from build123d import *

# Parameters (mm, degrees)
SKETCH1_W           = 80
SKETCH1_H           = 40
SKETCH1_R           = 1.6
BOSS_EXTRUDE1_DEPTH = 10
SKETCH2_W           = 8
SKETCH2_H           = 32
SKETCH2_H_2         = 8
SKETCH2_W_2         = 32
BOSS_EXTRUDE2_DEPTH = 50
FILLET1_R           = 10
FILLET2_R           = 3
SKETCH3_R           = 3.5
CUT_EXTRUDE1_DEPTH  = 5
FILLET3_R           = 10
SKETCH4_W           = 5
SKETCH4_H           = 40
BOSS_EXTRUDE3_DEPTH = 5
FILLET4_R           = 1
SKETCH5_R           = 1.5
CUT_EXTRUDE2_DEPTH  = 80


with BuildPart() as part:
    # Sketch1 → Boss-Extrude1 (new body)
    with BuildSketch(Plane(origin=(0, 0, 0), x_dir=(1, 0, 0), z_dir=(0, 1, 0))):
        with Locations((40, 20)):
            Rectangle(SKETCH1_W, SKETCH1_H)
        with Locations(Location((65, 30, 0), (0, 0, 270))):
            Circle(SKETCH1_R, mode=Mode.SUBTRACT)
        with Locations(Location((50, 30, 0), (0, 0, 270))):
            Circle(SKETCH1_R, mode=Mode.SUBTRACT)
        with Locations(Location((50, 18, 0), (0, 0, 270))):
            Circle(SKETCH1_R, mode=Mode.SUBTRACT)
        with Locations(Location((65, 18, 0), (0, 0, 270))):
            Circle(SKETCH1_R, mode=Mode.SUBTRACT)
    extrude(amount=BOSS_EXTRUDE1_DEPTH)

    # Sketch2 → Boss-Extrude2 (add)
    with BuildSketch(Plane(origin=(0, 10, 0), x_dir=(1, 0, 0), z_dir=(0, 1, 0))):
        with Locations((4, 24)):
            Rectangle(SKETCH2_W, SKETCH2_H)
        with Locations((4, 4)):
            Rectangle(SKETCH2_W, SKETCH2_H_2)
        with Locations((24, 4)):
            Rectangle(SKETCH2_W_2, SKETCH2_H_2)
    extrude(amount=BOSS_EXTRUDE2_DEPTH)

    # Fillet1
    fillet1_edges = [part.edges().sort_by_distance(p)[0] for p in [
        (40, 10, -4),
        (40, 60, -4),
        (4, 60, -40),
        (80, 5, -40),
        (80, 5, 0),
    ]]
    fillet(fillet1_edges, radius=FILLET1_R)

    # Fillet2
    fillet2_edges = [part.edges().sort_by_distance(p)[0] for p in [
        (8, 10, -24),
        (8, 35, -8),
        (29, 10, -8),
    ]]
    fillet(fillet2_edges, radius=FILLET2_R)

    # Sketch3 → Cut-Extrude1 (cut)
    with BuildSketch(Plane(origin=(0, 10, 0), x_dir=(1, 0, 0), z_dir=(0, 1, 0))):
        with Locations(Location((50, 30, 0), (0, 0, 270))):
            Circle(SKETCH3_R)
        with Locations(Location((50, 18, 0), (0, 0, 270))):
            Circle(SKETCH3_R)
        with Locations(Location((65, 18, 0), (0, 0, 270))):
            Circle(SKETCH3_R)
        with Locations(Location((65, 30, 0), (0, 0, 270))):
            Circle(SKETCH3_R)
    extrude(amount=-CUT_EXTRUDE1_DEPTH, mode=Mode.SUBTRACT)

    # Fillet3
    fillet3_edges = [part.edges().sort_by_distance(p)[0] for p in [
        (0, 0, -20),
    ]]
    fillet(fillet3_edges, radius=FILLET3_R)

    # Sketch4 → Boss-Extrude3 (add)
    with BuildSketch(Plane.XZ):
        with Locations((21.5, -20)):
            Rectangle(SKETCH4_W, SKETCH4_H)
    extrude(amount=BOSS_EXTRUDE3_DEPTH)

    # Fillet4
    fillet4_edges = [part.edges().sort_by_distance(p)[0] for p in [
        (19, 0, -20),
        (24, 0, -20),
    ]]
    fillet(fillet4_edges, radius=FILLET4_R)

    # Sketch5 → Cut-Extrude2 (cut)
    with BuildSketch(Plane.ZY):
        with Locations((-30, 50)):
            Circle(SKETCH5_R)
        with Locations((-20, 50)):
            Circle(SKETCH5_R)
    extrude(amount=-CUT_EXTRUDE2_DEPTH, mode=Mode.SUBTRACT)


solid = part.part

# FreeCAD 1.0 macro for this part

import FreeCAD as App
import Part
import Sketcher
from FreeCAD import Vector


def edges_at(feature, points):
    """Names of the edges that pass closest to the given points."""
    edges = feature.Shape.Edges
    near = lambda p: min(range(len(edges)), key=lambda i: edges[i].distToShape(Part.Vertex(*p))[0])
    return sorted({f"Edge{near(p) + 1}" for p in points})


def add_polygon(sketch, points):
    """Adds a closed chain of lines whose ends are joined by coincident constraints."""
    first, n = sketch.GeometryCount, len(points)
    for a, b in zip(points, points[1:] + points[:1]):
        sketch.addGeometry(Part.LineSegment(App.Vector(*a, 0), App.Vector(*b, 0)), False)
    for i in range(n):
        sketch.addConstraint(Sketcher.Constraint("Coincident", first + i, 2, first + (i + 1) % n, 1))

doc = App.newDocument("Part")
params = doc.addObject("Spreadsheet::Sheet", "Params")
for row, (alias, value) in enumerate([
    ("sketch1_diameter", "3.2 mm"),
    ("sketch1_width", "80 mm"),
    ("sketch1_height", "40 mm"),
    ("pad1_length", "10 mm"),
    ("sketch2_width", "40 mm"),
    ("sketch2_width2", "32 mm"),
    ("pad2_length", "50 mm"),
    ("fillet_radius", "10 mm"),
    ("fillet2_radius", "3 mm"),
    ("sketch3_diameter", "7 mm"),
    ("pocket1_length", "5 mm"),
    ("fillet3_radius", "10 mm"),
    ("sketch4_width", "5 mm"),
    ("sketch4_height", "40 mm"),
    ("pad3_length", "5 mm"),
    ("fillet4_radius", "1 mm"),
    ("sketch5_diameter", "3 mm"),
    ("pocket2_length", "80 mm"),
], start=1):
    params.set(f"A{row}", alias)
    params.set(f"B{row}", "=" + value)
    params.setAlias(f"B{row}", alias)

body = doc.addObject("PartDesign::Body", "Body")

sketch1 = doc.addObject("Sketcher::SketchObject", "Sketch")
body.addObject(sketch1)
sketch1.AttachmentSupport = (doc.XZ_Plane, [""])
sketch1.MapMode = "FlatFace"
add_polygon(sketch1, [(0, -40), (0, 0), (80, 0), (80, -40)])
sketch1.addGeometry(Part.Circle(Vector(50, -18, 0), Vector(0, 0, 1), 1.6), False)
sketch1.addGeometry(Part.Circle(Vector(65, -18, 0), Vector(0, 0, 1), 1.6), False)
sketch1.addGeometry(Part.Circle(Vector(50, -30, 0), Vector(0, 0, 1), 1.6), False)
sketch1.addGeometry(Part.Circle(Vector(65, -30, 0), Vector(0, 0, 1), 1.6), False)
sketch1.addConstraint(Sketcher.Constraint("Vertical", 0))
sketch1.addConstraint(Sketcher.Constraint("Horizontal", 1))
sketch1.addConstraint(Sketcher.Constraint("Vertical", 2))
sketch1.addConstraint(Sketcher.Constraint("Horizontal", 3))
sketch1.addConstraint(Sketcher.Constraint("Coincident", 0, 2, -1, 1))
sketch1.addConstraint(Sketcher.Constraint("Equal", 4, 5))
sketch1.addConstraint(Sketcher.Constraint("Equal", 5, 6))
sketch1.addConstraint(Sketcher.Constraint("Equal", 6, 7))
sketch1.addConstraint(Sketcher.Constraint("Horizontal", 4, 3, 5, 3))
sketch1.addConstraint(Sketcher.Constraint("Horizontal", 6, 3, 7, 3))
sketch1.addConstraint(Sketcher.Constraint("Vertical", 4, 3, 6, 3))
sketch1.addConstraint(Sketcher.Constraint("Vertical", 5, 3, 7, 3))
sketch1.addConstraint(Sketcher.Constraint("Diameter", 4, 3.2))
sketch1.addConstraint(Sketcher.Constraint("DistanceX", 1, 1, 1, 2, 80.0))
sketch1.addConstraint(Sketcher.Constraint("DistanceY", 0, 1, 0, 2, 40.0))
sketch1.addConstraint(Sketcher.Constraint("DistanceX", -1, 1, 4, 3, 50.0))
sketch1.addConstraint(Sketcher.Constraint("DistanceY", 4, 3, -1, 1, 18.0))
sketch1.addConstraint(Sketcher.Constraint("DistanceX", -1, 1, 5, 3, 65.0))
sketch1.addConstraint(Sketcher.Constraint("DistanceY", 6, 3, -1, 1, 30.0))
sketch1.setExpression("Constraints[16]", "Params.sketch1_diameter")
sketch1.setExpression("Constraints[17]", "Params.sketch1_width")
sketch1.setExpression("Constraints[18]", "Params.sketch1_height")
pad1 = doc.addObject("PartDesign::Pad", "Pad")
body.addObject(pad1)
pad1.Profile = sketch1
pad1.setExpression("Length", "Params.pad1_length")
pad1.Reversed = True

sketch2 = doc.addObject("Sketcher::SketchObject", "Sketch001")
body.addObject(sketch2)
sketch2.AttachmentSupport = (doc.XZ_Plane, [""])
sketch2.MapMode = "FlatFace"
sketch2.AttachmentOffset = App.Placement(Vector(0, 0, -10), App.Rotation())
add_polygon(sketch2, [(0, -40), (0, 0), (40, 0), (40, -8), (8, -8), (8, -40)])
sketch2.addConstraint(Sketcher.Constraint("Vertical", 0))
sketch2.addConstraint(Sketcher.Constraint("Horizontal", 1))
sketch2.addConstraint(Sketcher.Constraint("Vertical", 2))
sketch2.addConstraint(Sketcher.Constraint("Horizontal", 3))
sketch2.addConstraint(Sketcher.Constraint("Vertical", 4))
sketch2.addConstraint(Sketcher.Constraint("Horizontal", 5))
sketch2.addConstraint(Sketcher.Constraint("Coincident", 0, 2, -1, 1))
sketch2.addConstraint(Sketcher.Constraint("Equal", 1, 0))
sketch2.addConstraint(Sketcher.Constraint("Equal", 5, 2))
sketch2.addConstraint(Sketcher.Constraint("DistanceX", 1, 1, 1, 2, 40.0))
sketch2.addConstraint(Sketcher.Constraint("DistanceX", 3, 2, 3, 1, 32.0))
sketch2.setExpression("Constraints[15]", "Params.sketch2_width")
sketch2.setExpression("Constraints[16]", "Params.sketch2_width2")
pad2 = doc.addObject("PartDesign::Pad", "Pad001")
body.addObject(pad2)
pad2.Profile = sketch2
pad2.setExpression("Length", "Params.pad2_length")
pad2.Reversed = True
doc.recompute()

fillet = doc.addObject("PartDesign::Fillet", "Fillet")
body.addObject(fillet)
fillet.Base = (pad2, edges_at(pad2, [
    (40, 10, -4),
    (40, 60, -4),
    (4, 60, -40),
    (80, 5, -40),
    (80, 5, 0),
]))
fillet.setExpression("Radius", "Params.fillet_radius")
doc.recompute()

fillet2 = doc.addObject("PartDesign::Fillet", "Fillet001")
body.addObject(fillet2)
fillet2.Base = (fillet, edges_at(fillet, [(8, 10, -24), (8, 35, -8), (29, 10, -8)]))
fillet2.setExpression("Radius", "Params.fillet2_radius")

sketch3 = doc.addObject("Sketcher::SketchObject", "Sketch002")
body.addObject(sketch3)
sketch3.AttachmentSupport = (doc.XZ_Plane, [""])
sketch3.MapMode = "FlatFace"
sketch3.AttachmentOffset = App.Placement(Vector(0, 0, -10), App.Rotation())
sketch3.addGeometry(Part.Circle(Vector(50, -30, 0), Vector(0, 0, 1), 3.5), False)
sketch3.addGeometry(Part.Circle(Vector(50, -18, 0), Vector(0, 0, 1), 3.5), False)
sketch3.addGeometry(Part.Circle(Vector(65, -18, 0), Vector(0, 0, 1), 3.5), False)
sketch3.addGeometry(Part.Circle(Vector(65, -30, 0), Vector(0, 0, 1), 3.5), False)
sketch3.addConstraint(Sketcher.Constraint("Equal", 0, 1))
sketch3.addConstraint(Sketcher.Constraint("Equal", 1, 2))
sketch3.addConstraint(Sketcher.Constraint("Equal", 2, 3))
sketch3.addConstraint(Sketcher.Constraint("Horizontal", 1, 3, 2, 3))
sketch3.addConstraint(Sketcher.Constraint("Horizontal", 0, 3, 3, 3))
sketch3.addConstraint(Sketcher.Constraint("Vertical", 0, 3, 1, 3))
sketch3.addConstraint(Sketcher.Constraint("Vertical", 2, 3, 3, 3))
sketch3.addConstraint(Sketcher.Constraint("Diameter", 0, 7.0))
sketch3.addConstraint(Sketcher.Constraint("DistanceX", -1, 1, 0, 3, 50.0))
sketch3.addConstraint(Sketcher.Constraint("DistanceY", 0, 3, -1, 1, 30.0))
sketch3.addConstraint(Sketcher.Constraint("DistanceY", 1, 3, -1, 1, 18.0))
sketch3.addConstraint(Sketcher.Constraint("DistanceX", -1, 1, 2, 3, 65.0))
sketch3.setExpression("Constraints[7]", "Params.sketch3_diameter")
pocket1 = doc.addObject("PartDesign::Pocket", "Pocket")
body.addObject(pocket1)
pocket1.Profile = sketch3
pocket1.setExpression("Length", "Params.pocket1_length")
pocket1.Reversed = True
doc.recompute()

fillet3 = doc.addObject("PartDesign::Fillet", "Fillet002")
body.addObject(fillet3)
fillet3.Base = (pocket1, edges_at(pocket1, [(0, 0, -20)]))
fillet3.setExpression("Radius", "Params.fillet3_radius")

sketch4 = doc.addObject("Sketcher::SketchObject", "Sketch003")
body.addObject(sketch4)
sketch4.AttachmentSupport = (doc.XZ_Plane, [""])
sketch4.MapMode = "FlatFace"
add_polygon(sketch4, [(19, 0), (19, -40), (24, -40), (24, 0)])
sketch4.addConstraint(Sketcher.Constraint("Vertical", 0))
sketch4.addConstraint(Sketcher.Constraint("Horizontal", 1))
sketch4.addConstraint(Sketcher.Constraint("Vertical", 2))
sketch4.addConstraint(Sketcher.Constraint("Horizontal", 3))
sketch4.addConstraint(Sketcher.Constraint("PointOnObject", 2, 2, -1))
sketch4.addConstraint(Sketcher.Constraint("DistanceX", 1, 1, 1, 2, 5.0))
sketch4.addConstraint(Sketcher.Constraint("DistanceY", 0, 2, 0, 1, 40.0))
sketch4.addConstraint(Sketcher.Constraint("DistanceX", -1, 1, 0, 2, 19.0))
sketch4.setExpression("Constraints[9]", "Params.sketch4_width")
sketch4.setExpression("Constraints[10]", "Params.sketch4_height")
pad3 = doc.addObject("PartDesign::Pad", "Pad002")
body.addObject(pad3)
pad3.Profile = sketch4
pad3.setExpression("Length", "Params.pad3_length")
doc.recompute()

fillet4 = doc.addObject("PartDesign::Fillet", "Fillet003")
body.addObject(fillet4)
fillet4.Base = (pad3, edges_at(pad3, [(19, 0, -20), (24, 0, -20)]))
fillet4.setExpression("Radius", "Params.fillet4_radius")

sketch5 = doc.addObject("Sketcher::SketchObject", "Sketch004")
body.addObject(sketch5)
sketch5.AttachmentSupport = (doc.YZ_Plane, [""])
sketch5.MapMode = "FlatFace"
sketch5.addGeometry(Part.Circle(Vector(50, -30, 0), Vector(0, 0, 1), 1.5), False)
sketch5.addGeometry(Part.Circle(Vector(50, -20, 0), Vector(0, 0, 1), 1.5), False)
sketch5.addConstraint(Sketcher.Constraint("Equal", 0, 1))
sketch5.addConstraint(Sketcher.Constraint("Vertical", 0, 3, 1, 3))
sketch5.addConstraint(Sketcher.Constraint("Diameter", 0, 3.0))
sketch5.addConstraint(Sketcher.Constraint("DistanceX", -1, 1, 0, 3, 50.0))
sketch5.addConstraint(Sketcher.Constraint("DistanceY", 0, 3, -1, 1, 30.0))
sketch5.addConstraint(Sketcher.Constraint("DistanceY", 1, 3, -1, 1, 20.0))
sketch5.setExpression("Constraints[2]", "Params.sketch5_diameter")
pocket2 = doc.addObject("PartDesign::Pocket", "Pocket001")
body.addObject(pocket2)
pocket2.Profile = sketch5
pocket2.setExpression("Length", "Params.pocket2_length")
pocket2.Reversed = True

doc.recompute()
